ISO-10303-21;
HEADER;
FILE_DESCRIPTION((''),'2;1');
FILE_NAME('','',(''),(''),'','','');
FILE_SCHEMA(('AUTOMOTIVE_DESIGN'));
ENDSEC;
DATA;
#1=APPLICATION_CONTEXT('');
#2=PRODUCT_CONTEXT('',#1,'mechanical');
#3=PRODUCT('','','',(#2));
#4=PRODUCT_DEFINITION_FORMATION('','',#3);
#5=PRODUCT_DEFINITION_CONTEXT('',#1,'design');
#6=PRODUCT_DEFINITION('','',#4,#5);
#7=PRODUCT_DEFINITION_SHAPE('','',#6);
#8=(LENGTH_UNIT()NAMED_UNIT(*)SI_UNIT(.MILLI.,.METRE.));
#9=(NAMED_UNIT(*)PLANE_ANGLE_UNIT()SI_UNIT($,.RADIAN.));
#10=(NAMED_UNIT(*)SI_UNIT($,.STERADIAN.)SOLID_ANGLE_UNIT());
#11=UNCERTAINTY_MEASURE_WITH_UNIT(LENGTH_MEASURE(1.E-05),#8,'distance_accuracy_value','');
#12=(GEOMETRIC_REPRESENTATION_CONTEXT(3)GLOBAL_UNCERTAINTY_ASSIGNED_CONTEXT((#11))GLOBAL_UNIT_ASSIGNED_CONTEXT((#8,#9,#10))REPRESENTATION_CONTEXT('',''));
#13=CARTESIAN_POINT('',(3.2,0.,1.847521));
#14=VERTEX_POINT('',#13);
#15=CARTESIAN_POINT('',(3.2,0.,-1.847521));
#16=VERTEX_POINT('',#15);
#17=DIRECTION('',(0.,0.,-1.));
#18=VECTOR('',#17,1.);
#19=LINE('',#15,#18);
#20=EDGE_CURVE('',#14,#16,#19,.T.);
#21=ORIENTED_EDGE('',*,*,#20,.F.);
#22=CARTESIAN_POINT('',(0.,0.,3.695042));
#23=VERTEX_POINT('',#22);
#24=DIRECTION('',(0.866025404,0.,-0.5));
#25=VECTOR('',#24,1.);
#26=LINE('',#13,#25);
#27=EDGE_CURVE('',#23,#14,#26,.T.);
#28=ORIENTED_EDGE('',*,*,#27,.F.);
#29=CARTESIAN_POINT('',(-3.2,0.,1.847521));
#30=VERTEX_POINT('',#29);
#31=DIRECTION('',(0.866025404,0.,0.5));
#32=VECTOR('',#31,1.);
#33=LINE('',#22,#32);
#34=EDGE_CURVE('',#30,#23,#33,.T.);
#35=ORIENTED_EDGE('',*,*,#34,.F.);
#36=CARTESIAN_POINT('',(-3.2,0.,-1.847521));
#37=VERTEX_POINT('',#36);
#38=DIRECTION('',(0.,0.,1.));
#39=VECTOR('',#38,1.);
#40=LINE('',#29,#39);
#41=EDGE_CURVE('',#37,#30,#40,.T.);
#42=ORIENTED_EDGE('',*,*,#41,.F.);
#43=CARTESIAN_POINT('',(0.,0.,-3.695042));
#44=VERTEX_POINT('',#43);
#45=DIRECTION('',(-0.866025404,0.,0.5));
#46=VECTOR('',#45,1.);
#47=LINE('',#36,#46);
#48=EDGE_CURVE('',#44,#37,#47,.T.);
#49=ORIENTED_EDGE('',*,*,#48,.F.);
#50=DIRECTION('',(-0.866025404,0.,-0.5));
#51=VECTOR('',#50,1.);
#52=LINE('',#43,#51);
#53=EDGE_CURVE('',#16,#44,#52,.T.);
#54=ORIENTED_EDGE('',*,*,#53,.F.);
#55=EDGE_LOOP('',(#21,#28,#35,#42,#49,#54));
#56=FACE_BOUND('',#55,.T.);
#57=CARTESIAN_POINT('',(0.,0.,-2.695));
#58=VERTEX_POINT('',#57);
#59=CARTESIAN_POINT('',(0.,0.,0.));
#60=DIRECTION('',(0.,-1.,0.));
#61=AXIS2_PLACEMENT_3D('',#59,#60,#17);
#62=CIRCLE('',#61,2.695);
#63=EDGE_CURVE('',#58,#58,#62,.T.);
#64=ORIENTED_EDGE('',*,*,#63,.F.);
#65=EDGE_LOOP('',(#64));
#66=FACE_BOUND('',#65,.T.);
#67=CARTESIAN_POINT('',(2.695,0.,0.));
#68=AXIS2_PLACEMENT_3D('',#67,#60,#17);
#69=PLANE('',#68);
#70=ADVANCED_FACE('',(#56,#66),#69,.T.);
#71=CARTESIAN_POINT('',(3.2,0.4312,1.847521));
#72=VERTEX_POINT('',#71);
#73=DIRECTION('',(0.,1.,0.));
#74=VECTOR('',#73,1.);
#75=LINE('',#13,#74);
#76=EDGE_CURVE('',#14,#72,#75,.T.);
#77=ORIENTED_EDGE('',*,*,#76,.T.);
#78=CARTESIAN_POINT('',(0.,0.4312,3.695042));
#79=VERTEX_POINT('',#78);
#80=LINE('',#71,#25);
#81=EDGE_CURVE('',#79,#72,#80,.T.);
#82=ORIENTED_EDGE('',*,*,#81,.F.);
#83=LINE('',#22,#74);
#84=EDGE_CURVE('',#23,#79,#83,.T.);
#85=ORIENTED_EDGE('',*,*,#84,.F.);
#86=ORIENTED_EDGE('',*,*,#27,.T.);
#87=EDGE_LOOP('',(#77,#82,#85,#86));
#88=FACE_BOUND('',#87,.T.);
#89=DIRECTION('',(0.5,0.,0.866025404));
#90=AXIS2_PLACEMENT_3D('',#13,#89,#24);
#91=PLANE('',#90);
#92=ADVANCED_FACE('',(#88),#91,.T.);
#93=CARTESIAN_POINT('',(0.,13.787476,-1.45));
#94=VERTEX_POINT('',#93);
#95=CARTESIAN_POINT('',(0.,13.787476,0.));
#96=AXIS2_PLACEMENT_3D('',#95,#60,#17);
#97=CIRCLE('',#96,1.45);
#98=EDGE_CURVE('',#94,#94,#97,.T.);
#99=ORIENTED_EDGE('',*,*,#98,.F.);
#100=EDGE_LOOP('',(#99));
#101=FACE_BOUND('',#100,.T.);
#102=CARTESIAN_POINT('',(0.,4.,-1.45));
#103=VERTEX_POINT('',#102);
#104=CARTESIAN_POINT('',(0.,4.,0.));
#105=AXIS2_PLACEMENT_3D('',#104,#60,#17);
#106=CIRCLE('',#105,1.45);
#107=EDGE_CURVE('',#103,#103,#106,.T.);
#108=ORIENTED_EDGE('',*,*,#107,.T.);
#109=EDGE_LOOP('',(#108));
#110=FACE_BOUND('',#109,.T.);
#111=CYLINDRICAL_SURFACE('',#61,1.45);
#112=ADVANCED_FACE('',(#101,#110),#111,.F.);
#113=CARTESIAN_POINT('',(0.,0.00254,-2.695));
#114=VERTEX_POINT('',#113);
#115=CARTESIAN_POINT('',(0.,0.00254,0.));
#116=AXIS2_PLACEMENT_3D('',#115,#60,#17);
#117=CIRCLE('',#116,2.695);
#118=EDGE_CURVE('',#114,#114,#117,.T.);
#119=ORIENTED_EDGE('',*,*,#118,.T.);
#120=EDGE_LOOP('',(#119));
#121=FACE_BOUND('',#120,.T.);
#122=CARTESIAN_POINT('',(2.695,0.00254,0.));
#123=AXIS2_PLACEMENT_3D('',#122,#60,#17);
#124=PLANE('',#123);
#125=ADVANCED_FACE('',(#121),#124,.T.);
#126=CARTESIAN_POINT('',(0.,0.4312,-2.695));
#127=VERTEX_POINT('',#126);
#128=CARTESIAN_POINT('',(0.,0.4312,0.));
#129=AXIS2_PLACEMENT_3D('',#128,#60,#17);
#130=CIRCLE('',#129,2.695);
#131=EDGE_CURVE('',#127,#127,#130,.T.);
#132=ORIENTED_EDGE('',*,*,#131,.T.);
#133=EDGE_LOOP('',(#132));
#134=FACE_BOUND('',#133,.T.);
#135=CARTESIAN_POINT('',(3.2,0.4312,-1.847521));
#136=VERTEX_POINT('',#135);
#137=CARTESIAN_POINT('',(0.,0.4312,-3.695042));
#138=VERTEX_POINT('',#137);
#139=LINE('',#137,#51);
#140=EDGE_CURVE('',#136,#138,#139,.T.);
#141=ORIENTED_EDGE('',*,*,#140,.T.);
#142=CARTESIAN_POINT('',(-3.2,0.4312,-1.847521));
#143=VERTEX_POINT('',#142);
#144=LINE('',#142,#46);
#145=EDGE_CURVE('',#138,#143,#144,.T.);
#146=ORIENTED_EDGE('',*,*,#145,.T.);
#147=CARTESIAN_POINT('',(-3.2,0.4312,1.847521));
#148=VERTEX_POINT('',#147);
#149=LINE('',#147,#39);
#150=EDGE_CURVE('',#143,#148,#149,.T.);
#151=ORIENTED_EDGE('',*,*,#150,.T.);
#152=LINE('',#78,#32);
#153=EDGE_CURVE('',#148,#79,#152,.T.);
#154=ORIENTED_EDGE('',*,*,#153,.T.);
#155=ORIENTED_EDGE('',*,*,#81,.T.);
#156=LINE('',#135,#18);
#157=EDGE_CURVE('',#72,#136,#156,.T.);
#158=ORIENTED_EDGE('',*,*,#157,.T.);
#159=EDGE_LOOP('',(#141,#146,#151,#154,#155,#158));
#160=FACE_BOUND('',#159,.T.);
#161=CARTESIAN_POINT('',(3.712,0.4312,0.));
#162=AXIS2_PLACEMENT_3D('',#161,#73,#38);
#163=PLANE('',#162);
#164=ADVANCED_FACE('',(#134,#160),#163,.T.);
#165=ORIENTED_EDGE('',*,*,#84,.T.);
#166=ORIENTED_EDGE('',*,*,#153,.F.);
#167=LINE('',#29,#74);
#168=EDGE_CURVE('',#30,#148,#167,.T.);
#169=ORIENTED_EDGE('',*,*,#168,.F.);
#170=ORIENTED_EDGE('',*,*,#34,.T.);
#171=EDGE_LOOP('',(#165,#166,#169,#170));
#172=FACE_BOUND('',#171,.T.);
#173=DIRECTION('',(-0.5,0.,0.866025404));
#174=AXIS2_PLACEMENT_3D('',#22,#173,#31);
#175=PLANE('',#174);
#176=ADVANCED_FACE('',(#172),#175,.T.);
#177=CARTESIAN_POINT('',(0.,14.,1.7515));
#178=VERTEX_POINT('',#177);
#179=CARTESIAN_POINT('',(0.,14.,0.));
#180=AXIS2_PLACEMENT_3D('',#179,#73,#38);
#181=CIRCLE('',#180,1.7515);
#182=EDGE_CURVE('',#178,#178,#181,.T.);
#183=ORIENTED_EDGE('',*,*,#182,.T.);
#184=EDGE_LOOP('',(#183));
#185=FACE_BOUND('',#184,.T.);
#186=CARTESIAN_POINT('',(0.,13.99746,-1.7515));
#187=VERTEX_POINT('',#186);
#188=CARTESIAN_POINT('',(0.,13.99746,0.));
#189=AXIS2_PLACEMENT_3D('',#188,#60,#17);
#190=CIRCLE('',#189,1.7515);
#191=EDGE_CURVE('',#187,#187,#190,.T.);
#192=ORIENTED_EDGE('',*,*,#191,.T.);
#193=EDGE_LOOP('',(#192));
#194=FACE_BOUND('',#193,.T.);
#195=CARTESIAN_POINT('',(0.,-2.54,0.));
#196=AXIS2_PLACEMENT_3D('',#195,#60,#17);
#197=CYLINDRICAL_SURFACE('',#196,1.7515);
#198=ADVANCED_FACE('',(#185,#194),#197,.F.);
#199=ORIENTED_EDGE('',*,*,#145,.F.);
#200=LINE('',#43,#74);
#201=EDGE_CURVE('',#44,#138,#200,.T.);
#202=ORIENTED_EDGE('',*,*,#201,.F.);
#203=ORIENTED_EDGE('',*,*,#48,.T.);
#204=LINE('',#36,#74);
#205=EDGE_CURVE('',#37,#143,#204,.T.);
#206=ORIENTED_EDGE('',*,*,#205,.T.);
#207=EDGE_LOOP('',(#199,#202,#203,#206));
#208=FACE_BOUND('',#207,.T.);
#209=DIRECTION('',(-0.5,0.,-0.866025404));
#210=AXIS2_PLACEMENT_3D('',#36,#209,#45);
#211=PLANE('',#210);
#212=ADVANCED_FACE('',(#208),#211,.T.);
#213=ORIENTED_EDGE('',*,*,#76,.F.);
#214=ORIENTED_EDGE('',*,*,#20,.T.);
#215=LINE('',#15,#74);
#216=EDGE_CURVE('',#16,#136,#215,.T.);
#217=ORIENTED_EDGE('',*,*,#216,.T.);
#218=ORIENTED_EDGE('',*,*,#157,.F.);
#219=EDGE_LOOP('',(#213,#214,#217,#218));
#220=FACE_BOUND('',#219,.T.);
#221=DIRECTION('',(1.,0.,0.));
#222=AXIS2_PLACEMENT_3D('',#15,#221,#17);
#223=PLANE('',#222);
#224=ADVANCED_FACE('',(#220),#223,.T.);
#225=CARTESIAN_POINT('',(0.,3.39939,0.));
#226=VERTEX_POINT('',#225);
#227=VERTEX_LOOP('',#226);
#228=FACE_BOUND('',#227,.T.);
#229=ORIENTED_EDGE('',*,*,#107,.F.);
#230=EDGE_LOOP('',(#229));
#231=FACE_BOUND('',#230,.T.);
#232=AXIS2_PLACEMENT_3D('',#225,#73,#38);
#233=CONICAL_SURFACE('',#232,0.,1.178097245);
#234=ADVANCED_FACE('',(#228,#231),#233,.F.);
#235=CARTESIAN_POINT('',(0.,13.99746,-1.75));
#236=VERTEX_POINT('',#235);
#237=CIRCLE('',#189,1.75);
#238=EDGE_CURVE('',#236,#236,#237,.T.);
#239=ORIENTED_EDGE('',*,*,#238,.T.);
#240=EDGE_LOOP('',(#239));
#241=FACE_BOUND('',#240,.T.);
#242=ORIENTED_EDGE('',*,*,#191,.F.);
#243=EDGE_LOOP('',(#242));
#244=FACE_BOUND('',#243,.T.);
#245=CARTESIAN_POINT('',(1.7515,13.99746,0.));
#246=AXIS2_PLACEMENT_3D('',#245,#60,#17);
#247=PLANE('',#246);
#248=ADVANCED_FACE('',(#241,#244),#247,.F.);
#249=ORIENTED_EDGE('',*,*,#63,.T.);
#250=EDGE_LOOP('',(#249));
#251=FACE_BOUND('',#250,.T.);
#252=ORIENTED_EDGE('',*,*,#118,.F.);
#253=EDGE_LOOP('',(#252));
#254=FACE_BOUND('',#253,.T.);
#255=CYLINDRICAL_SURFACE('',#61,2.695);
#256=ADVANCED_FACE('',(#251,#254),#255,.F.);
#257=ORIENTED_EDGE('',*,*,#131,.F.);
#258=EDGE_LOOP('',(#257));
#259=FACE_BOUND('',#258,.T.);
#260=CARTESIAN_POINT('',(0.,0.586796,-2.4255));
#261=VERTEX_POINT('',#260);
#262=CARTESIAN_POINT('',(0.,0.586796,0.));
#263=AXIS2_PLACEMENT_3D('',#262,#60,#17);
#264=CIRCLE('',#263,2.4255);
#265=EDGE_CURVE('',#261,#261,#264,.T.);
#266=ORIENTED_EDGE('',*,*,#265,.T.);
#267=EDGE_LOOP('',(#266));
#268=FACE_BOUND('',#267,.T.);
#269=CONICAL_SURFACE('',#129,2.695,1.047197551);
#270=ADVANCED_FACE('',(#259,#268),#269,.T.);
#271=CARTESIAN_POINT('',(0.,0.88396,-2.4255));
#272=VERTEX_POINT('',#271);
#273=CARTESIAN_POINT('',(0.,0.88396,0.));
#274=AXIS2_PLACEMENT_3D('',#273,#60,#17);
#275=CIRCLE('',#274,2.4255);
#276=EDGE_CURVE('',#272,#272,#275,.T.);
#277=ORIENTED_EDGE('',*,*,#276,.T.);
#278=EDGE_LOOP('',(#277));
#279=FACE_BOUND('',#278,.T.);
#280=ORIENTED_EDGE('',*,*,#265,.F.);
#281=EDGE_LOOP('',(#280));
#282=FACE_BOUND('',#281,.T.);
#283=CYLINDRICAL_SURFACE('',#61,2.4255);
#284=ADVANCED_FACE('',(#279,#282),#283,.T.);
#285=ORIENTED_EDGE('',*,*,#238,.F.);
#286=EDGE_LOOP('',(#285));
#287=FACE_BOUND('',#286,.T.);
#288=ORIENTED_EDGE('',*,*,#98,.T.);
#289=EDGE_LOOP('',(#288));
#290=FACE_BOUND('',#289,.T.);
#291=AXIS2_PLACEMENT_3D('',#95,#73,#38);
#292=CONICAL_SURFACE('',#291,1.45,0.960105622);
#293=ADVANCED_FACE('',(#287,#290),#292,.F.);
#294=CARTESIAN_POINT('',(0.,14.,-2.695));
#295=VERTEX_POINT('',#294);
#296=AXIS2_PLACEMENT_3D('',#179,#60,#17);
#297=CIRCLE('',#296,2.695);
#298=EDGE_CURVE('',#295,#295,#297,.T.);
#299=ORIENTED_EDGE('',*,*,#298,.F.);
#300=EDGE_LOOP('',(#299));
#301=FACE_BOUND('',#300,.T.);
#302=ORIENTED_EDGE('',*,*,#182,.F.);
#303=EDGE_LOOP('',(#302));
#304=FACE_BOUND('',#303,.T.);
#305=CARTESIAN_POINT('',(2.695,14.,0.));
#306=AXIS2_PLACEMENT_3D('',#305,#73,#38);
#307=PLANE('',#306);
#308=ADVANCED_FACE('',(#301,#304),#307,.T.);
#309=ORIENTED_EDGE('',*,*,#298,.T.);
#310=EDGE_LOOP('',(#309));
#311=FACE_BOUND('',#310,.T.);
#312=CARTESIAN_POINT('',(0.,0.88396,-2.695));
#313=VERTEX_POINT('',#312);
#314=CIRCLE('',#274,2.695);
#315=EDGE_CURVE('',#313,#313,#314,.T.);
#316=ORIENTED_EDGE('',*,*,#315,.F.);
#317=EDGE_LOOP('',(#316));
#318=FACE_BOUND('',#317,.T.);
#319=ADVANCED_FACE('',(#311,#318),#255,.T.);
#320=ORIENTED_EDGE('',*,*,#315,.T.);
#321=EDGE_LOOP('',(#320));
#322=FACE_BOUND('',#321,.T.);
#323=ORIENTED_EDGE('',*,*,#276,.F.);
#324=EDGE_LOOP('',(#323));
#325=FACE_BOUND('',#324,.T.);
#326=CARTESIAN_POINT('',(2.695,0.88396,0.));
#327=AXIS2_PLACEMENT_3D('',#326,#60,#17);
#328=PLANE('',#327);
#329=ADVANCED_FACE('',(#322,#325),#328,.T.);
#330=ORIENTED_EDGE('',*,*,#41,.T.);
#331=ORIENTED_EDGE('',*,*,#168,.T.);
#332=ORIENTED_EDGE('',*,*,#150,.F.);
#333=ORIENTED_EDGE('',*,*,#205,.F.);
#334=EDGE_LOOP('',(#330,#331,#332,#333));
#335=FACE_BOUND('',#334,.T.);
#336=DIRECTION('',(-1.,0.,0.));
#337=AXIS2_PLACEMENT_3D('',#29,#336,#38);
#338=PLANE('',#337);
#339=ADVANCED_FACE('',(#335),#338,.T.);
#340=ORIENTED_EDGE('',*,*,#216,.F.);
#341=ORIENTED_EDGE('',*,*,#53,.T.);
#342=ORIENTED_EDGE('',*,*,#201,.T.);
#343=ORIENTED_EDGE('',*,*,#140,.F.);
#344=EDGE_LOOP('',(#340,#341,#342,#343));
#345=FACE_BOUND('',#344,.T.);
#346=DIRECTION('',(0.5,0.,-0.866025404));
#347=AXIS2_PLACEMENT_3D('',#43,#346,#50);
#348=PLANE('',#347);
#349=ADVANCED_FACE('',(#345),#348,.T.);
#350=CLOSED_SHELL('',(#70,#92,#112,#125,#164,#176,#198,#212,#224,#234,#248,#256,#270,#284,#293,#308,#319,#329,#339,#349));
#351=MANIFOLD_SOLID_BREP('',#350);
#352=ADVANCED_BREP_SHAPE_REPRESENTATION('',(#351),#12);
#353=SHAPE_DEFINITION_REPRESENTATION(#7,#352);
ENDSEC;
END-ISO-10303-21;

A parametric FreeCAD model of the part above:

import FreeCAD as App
import Part
import Sketcher
from FreeCAD import Vector
Q = App.Units.Quantity

doc = App.newDocument("Part")
body = doc.addObject("PartDesign::Body", "Body")

# Sketch on XY plane
sketch1 = body.newObject("Sketcher::SketchObject", "Sketch")
sketch1.AttachmentSupport = (doc.getObject("XY_Plane"), [""])
sketch1.MapMode = "FlatFace"
sketch1.addGeometry([
    Part.LineSegment(Vector(2.695, 0, 0), Vector(3.712, 0, 0)),  # 0
    Part.LineSegment(Vector(3.712, 0, 0), Vector(3.712, 0.4312, 0)),  # 1
    Part.LineSegment(Vector(3.712, 0.4312, 0), Vector(2.695, 0.4312, 0)),  # 2
    Part.LineSegment(Vector(2.695, 0.4312, 0), Vector(2.4255, 0.5868, 0)),  # 3
    Part.LineSegment(Vector(2.4255, 0.5868, 0), Vector(2.4255, 0.884, 0)),  # 4
    Part.LineSegment(Vector(2.4255, 0.884, 0), Vector(2.695, 0.884, 0)),  # 5
    Part.LineSegment(Vector(2.695, 0.884, 0), Vector(2.695, 14, 0)),  # 6
    Part.LineSegment(Vector(2.695, 14, 0), Vector(1.45, 14, 0)),  # 7
    Part.LineSegment(Vector(1.45, 14, 0), Vector(1.45, 7, 0)),  # 8
    Part.LineSegment(Vector(1.45, 7, 0), Vector(0, 7, 0)),  # 9
    Part.LineSegment(Vector(0, 7, 0), Vector(0, 0.0025, 0)),  # 10
    Part.LineSegment(Vector(0, 0.0025, 0), Vector(2.695, 0.0025, 0)),  # 11
    Part.LineSegment(Vector(2.695, 0.0025, 0), Vector(2.695, 0, 0)),  # 12
], False)
sketch1.addConstraint([
    Sketcher.Constraint("Coincident", 0, 2, 1, 1),
    Sketcher.Constraint("Coincident", 1, 2, 2, 1),
    Sketcher.Constraint("Coincident", 2, 2, 3, 1),
    Sketcher.Constraint("Coincident", 3, 2, 4, 1),
    Sketcher.Constraint("Coincident", 4, 2, 5, 1),
    Sketcher.Constraint("Coincident", 5, 2, 6, 1),
    Sketcher.Constraint("Coincident", 6, 2, 7, 1),
    Sketcher.Constraint("Coincident", 7, 2, 8, 1),
    Sketcher.Constraint("Coincident", 8, 2, 9, 1),
    Sketcher.Constraint("Coincident", 9, 2, 10, 1),
    Sketcher.Constraint("Coincident", 10, 2, 11, 1),
    Sketcher.Constraint("Coincident", 11, 2, 12, 1),
    Sketcher.Constraint("Coincident", 12, 2, 0, 1),
    Sketcher.Constraint("Horizontal", 0),
    Sketcher.Constraint("Vertical", 1),
    Sketcher.Constraint("Horizontal", 2),
    Sketcher.Constraint("Vertical", 4),
    Sketcher.Constraint("Horizontal", 5),
    Sketcher.Constraint("Vertical", 6),
    Sketcher.Constraint("Horizontal", 7),
    Sketcher.Constraint("Vertical", 8),
    Sketcher.Constraint("Horizontal", 9),
    Sketcher.Constraint("Vertical", 10),
    Sketcher.Constraint("Horizontal", 11),
    Sketcher.Constraint("Vertical", 12),
    Sketcher.Constraint("PointOnObject", 0, 2, -1),
    Sketcher.Constraint("PointOnObject", 9, 2, -2),
    Sketcher.Constraint("Vertical", 2, 2, 5, 2),
    Sketcher.Constraint("Vertical", 6, 2, 11, 2),
    Sketcher.Constraint("DistanceY", 8, 2, 8, 1, Q("7 mm")),
    Sketcher.Constraint("Angle", 3, Q("150 deg")),
    Sketcher.Constraint("DistanceY", -1, 1, 6, 2, Q("14 mm")),
    Sketcher.Constraint("DistanceX", 9, 2, 9, 1, Q("1.45 mm")),
    Sketcher.Constraint("DistanceX", 0, 1, 0, 2, Q("1.017 mm")),
    Sketcher.Constraint("DistanceX", 7, 2, 7, 1, Q("1.245 mm")),
    Sketcher.Constraint("DistanceX", 5, 1, 5, 2, Q("0.2695 mm")),
    Sketcher.Constraint("DistanceY", 1, 1, 1, 2, Q("0.4312 mm")),
    Sketcher.Constraint("DistanceY", 6, 1, 6, 2, Q("13.11604 mm")),
    Sketcher.Constraint("DistanceY", 10, 2, 10, 1, Q("6.99746 mm")),
])
revolution = body.newObject("PartDesign::Revolution", "Revolution")
revolution.Profile = sketch1
revolution.ReferenceAxis = (sketch1, ["V_Axis"])
revolution.Angle = 360

# Sketch on XY plane
sketch2 = body.newObject("Sketcher::SketchObject", "Sketch001")
sketch2.AttachmentSupport = (doc.getObject("XY_Plane"), [""])
sketch2.MapMode = "FlatFace"
sketch2.addGeometry([
    Part.LineSegment(Vector(1.4, 4, 0), Vector(1.4, 14, 0)),
    Part.LineSegment(Vector(1.4, 14, 0), Vector(0, 14, 0)),
    Part.LineSegment(Vector(0, 14, 0), Vector(0, 3.4, 0)),
    Part.LineSegment(Vector(0, 3.4, 0), Vector(1.4, 4, 0)),
], False)
sketch2.addConstraint([
    Sketcher.Constraint("Coincident", 0, 2, 1, 1),
    Sketcher.Constraint("Coincident", 1, 2, 2, 1),
    Sketcher.Constraint("Coincident", 2, 2, 3, 1),
    Sketcher.Constraint("Coincident", 3, 2, 0, 1),
    Sketcher.Constraint("Vertical", 0),
    Sketcher.Constraint("Horizontal", 1),
    Sketcher.Constraint("Vertical", 2),
    Sketcher.Constraint("PointOnObject", 1, 2, -2),
    Sketcher.Constraint("DistanceY", 0, 1, 0, 2, Q("10 mm")),
    Sketcher.Constraint("DistanceY", -1, 1, 0, 2, Q("14 mm")),
    Sketcher.Constraint("Angle", 3, Q("22.5 deg")),
    Sketcher.Constraint("DistanceX", 1, 2, 1, 1, Q("1.45 mm")),
])
groove = body.newObject("PartDesign::Groove", "Groove")
groove.Profile = sketch2
groove.ReferenceAxis = (sketch2, ["V_Axis"])
groove.Angle = 360

# Sketch on XY plane
sketch3 = body.newObject("Sketcher::SketchObject", "Sketch002")
sketch3.AttachmentSupport = (doc.getObject("XY_Plane"), [""])
sketch3.MapMode = "FlatFace"
sketch3.addGeometry([
    Part.LineSegment(Vector(1.7515, 13.99746, 0), Vector(1.7515, 14.254, 0)),  # 0
    Part.LineSegment(Vector(1.7515, 14.254, 0), Vector(1.45, 14.254, 0)),  # 1
    Part.LineSegment(Vector(1.45, 14.254, 0), Vector(1.45, 13.787476, 0)),  # 2
    Part.LineSegment(Vector(1.45, 13.787476, 0), Vector(1.75, 13.99746, 0)),  # 3
    Part.LineSegment(Vector(1.75, 13.99746, 0), Vector(1.7515, 13.99746, 0)),  # 4
], False)
sketch3.addConstraint([
    Sketcher.Constraint("Coincident", 0, 2, 1, 1),
    Sketcher.Constraint("Coincident", 1, 2, 2, 1),
    Sketcher.Constraint("Coincident", 2, 2, 3, 1),
    Sketcher.Constraint("Coincident", 3, 2, 4, 1),
    Sketcher.Constraint("Coincident", 4, 2, 0, 1),
    Sketcher.Constraint("Vertical", 0),
    Sketcher.Constraint("Horizontal", 1),
    Sketcher.Constraint("Vertical", 2),
    Sketcher.Constraint("Horizontal", 4),
    Sketcher.Constraint("Angle", 3, Q("34.99 deg")),
    Sketcher.Constraint("DistanceX", 2, 2, 3, 2, Q("0.3 mm")),
    Sketcher.Constraint("DistanceX", -1, 1, 1, 2, Q("1.45 mm")),
    Sketcher.Constraint("DistanceX", 1, 2, 1, 1, Q("0.3015 mm")),
    Sketcher.Constraint("DistanceY", -1, 1, 0, 2, Q("14.254 mm")),
    Sketcher.Constraint("DistanceY", 0, 1, 0, 2, Q("0.25654 mm")),
])
groove2 = body.newObject("PartDesign::Groove", "Groove001")
groove2.Profile = sketch3
groove2.ReferenceAxis = (sketch3, ["V_Axis"])
groove2.Angle = 360

# Sketch on XZ plane
sketch4 = body.newObject("Sketcher::SketchObject", "Sketch003")
sketch4.AttachmentSupport = (doc.getObject("XZ_Plane"), [""])
sketch4.MapMode = "FlatFace"
sketch4.AttachmentOffset = App.Placement(Vector(0, 0, -0.4312), App.Rotation())
sketch4.addGeometry([
    Part.Circle(Vector(0, 0, 0), Vector(0, 0, 1), 3.7),  # 0
    Part.LineSegment(Vector(3.2, 1.8, 0), Vector(0, 3.7, 0)),  # 1
    Part.LineSegment(Vector(0, 3.7, 0), Vector(-3.2, 1.8, 0)),  # 2
    Part.LineSegment(Vector(-3.2, 1.8, 0), Vector(-3.2, -1.8, 0)),  # 3
    Part.LineSegment(Vector(-3.2, -1.8, 0), Vector(0, -3.7, 0)),  # 4
    Part.LineSegment(Vector(0, -3.7, 0), Vector(3.2, -1.8, 0)),  # 5
    Part.LineSegment(Vector(3.2, -1.8, 0), Vector(3.2, 1.8, 0)),  # 6
], False)
sketch4.addConstraint([
    Sketcher.Constraint("Coincident", 1, 2, 2, 1),
    Sketcher.Constraint("Coincident", 2, 2, 3, 1),
    Sketcher.Constraint("Coincident", 3, 2, 4, 1),
    Sketcher.Constraint("Coincident", 4, 2, 5, 1),
    Sketcher.Constraint("Coincident", 5, 2, 6, 1),
    Sketcher.Constraint("Coincident", 6, 2, 1, 1),
    Sketcher.Constraint("Vertical", 3),
    Sketcher.Constraint("Vertical", 6),
    Sketcher.Constraint("Coincident", 0, 3, -1, 1),
    Sketcher.Constraint("Symmetric", 1, 2, 4, 2, -1, 1),
    Sketcher.Constraint("Symmetric", 2, 2, 5, 2, -1, 1),
    Sketcher.Constraint("PointOnObject", 1, 2, -2),
    Sketcher.Constraint("Parallel", 1, 4),
    Sketcher.Constraint("Horizontal", 3, 2, 5, 2),
    Sketcher.Constraint("Angle", 1, Q("150 deg")),
    Sketcher.Constraint("Diameter", 0, Q("7.425 mm")),
    Sketcher.Constraint("DistanceX", 2, 2, -1, 1, Q("3.2 mm")),
    Sketcher.Constraint("DistanceY", 3, 2, 3, 1, Q("3.695042 mm")),
])
pocket1 = body.newObject("PartDesign::Pocket", "Pocket")
pocket1.Profile = sketch4
pocket1.Length = 0.4312
pocket1.Reversed = True

doc.recompute()
